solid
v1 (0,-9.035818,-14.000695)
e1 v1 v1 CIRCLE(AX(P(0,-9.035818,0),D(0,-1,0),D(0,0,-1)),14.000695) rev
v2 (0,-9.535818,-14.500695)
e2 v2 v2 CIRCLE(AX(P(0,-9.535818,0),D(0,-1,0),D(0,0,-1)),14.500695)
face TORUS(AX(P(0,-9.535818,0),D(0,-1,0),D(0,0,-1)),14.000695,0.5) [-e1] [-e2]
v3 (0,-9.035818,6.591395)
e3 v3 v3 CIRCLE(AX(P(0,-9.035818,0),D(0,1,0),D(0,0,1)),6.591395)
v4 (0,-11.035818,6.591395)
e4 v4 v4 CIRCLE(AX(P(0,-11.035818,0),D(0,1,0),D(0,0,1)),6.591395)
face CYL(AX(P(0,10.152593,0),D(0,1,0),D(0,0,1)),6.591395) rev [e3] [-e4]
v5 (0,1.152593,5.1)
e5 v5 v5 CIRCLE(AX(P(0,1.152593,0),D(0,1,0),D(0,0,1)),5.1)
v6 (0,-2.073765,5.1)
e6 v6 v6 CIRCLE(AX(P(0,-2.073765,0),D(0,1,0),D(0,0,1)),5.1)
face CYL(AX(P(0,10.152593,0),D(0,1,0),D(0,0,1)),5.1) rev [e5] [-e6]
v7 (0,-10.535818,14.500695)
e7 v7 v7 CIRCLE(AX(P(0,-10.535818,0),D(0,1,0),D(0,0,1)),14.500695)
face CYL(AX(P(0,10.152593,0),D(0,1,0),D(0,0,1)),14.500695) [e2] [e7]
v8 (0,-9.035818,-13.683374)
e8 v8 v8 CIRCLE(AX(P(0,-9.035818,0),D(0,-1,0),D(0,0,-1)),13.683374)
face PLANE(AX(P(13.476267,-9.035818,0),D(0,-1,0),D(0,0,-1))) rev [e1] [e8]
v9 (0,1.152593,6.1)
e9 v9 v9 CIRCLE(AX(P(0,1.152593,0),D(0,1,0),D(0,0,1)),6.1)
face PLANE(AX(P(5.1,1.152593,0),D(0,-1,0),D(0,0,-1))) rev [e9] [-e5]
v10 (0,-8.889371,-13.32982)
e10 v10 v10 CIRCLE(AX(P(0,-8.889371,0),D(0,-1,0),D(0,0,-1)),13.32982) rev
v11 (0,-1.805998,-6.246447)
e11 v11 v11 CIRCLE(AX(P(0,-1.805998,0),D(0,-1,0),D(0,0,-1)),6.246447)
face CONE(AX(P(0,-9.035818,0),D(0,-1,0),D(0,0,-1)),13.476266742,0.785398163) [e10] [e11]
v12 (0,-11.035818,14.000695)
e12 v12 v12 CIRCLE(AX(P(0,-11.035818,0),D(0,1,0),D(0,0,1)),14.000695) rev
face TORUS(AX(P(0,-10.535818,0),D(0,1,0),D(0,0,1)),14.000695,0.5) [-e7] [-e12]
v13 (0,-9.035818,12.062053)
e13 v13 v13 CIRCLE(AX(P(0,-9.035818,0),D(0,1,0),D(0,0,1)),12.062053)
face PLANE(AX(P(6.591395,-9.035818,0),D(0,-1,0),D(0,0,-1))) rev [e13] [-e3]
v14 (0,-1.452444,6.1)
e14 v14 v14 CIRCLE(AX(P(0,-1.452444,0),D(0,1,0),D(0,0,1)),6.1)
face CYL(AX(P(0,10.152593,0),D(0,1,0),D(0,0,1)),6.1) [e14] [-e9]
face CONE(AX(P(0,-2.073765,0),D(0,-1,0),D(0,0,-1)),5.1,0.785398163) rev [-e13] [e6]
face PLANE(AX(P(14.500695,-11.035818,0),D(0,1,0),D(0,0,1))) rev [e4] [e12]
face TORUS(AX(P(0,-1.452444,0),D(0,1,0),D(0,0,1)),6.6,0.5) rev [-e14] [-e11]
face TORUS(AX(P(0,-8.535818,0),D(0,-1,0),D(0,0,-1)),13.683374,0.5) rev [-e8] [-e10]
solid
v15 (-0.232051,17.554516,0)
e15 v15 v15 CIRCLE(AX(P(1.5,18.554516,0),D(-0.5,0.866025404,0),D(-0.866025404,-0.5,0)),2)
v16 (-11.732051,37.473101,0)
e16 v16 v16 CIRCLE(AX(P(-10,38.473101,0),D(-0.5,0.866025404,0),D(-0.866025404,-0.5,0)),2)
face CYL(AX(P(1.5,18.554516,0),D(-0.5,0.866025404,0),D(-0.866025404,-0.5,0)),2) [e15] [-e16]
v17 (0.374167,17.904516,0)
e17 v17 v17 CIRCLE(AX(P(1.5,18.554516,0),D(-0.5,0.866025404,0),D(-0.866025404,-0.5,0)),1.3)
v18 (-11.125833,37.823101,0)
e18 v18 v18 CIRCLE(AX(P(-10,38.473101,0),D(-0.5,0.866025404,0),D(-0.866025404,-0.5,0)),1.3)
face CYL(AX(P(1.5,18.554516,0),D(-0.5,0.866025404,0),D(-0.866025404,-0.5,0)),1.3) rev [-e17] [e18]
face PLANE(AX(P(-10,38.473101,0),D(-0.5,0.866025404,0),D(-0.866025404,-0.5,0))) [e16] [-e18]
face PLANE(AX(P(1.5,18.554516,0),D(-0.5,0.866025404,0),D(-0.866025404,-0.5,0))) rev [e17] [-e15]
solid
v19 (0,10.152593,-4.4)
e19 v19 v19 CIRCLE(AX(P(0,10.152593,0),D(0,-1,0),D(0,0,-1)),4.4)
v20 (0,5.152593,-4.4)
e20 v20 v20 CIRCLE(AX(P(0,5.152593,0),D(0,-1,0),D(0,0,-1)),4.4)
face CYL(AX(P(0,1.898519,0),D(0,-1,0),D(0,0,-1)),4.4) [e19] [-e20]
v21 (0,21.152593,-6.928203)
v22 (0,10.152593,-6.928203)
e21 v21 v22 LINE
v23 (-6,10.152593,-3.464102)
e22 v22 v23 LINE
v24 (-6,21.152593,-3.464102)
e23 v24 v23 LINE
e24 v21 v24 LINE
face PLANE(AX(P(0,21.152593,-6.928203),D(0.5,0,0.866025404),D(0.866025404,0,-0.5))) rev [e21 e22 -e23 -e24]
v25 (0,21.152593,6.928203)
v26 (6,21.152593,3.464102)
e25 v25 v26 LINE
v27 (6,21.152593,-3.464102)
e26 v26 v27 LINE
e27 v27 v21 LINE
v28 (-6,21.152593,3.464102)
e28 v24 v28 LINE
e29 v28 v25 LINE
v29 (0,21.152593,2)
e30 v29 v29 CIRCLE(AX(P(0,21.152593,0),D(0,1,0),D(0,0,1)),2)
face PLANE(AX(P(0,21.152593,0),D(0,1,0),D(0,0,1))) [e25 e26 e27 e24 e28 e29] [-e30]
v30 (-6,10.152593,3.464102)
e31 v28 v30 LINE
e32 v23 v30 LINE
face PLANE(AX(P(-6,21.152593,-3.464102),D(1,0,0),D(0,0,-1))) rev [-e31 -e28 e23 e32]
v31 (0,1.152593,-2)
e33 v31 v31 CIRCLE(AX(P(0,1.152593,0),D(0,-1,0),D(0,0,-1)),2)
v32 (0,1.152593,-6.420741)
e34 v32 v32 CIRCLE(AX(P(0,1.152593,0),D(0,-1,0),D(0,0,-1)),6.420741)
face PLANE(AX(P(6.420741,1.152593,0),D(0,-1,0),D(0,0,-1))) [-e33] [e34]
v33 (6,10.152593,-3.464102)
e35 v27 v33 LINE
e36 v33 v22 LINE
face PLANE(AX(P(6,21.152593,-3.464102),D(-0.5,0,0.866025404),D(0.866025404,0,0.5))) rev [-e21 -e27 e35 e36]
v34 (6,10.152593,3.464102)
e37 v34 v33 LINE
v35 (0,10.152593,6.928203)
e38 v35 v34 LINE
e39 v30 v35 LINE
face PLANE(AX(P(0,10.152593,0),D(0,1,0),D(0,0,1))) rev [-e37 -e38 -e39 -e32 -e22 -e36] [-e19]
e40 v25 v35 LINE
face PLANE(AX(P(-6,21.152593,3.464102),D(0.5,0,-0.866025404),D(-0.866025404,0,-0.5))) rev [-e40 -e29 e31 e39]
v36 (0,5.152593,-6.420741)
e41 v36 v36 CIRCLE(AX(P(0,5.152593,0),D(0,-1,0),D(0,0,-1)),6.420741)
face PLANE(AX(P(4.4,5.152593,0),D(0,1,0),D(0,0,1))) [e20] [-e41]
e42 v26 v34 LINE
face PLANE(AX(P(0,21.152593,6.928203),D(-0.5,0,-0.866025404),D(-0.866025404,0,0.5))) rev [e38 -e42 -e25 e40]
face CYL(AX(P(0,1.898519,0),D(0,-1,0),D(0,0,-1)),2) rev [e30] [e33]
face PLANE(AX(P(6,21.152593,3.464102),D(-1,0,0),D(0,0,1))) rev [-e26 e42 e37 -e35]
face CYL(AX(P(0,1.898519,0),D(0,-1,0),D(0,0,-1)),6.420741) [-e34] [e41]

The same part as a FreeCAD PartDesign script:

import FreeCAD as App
import Part
import Sketcher
Q = App.Units.Quantity


def edges_at(feature, points):
    """Names of the edges that pass closest to the given points."""
    edges = feature.Shape.Edges
    near = lambda p: min(range(len(edges)), key=lambda i: edges[i].distToShape(Part.Vertex(*p))[0])
    return sorted({f"Edge{near(p) + 1}" for p in points})

doc = App.newDocument("Part")
body = doc.addObject("PartDesign::Body", "Body")

# Sketch on XY plane
sketch1 = body.newObject("Sketcher::SketchObject", "Sketch")
sketch1.AttachmentSupport = (doc.getObject("XY_Plane"), [""])
sketch1.MapMode = "FlatFace"
sketch1.addGeometry(Part.LineSegment(App.Vector(4.4, 5.2, 0), App.Vector(4.4, 10.2, 0)), False)
sketch1.addGeometry(Part.LineSegment(App.Vector(4.4, 10.2, 0), App.Vector(2, 10.2, 0)), False)
sketch1.addGeometry(Part.LineSegment(App.Vector(2, 10.2, 0), App.Vector(2, 1.2, 0)), False)
sketch1.addGeometry(Part.LineSegment(App.Vector(2, 1.2, 0), App.Vector(6.4, 1.2, 0)), False)
sketch1.addGeometry(Part.LineSegment(App.Vector(6.4, 1.2, 0), App.Vector(6.4, 5.2, 0)), False)
sketch1.addGeometry(Part.LineSegment(App.Vector(6.4, 5.2, 0), App.Vector(4.4, 5.2, 0)), False)
sketch1.addConstraint(Sketcher.Constraint("Coincident", 0, 2, 1, 1))
sketch1.addConstraint(Sketcher.Constraint("Coincident", 1, 2, 2, 1))
sketch1.addConstraint(Sketcher.Constraint("Coincident", 2, 2, 3, 1))
sketch1.addConstraint(Sketcher.Constraint("Coincident", 3, 2, 4, 1))
sketch1.addConstraint(Sketcher.Constraint("Coincident", 4, 2, 5, 1))
sketch1.addConstraint(Sketcher.Constraint("Coincident", 5, 2, 0, 1))
sketch1.addConstraint(Sketcher.Constraint("Vertical", 0))
sketch1.addConstraint(Sketcher.Constraint("Horizontal", 1))
sketch1.addConstraint(Sketcher.Constraint("Vertical", 2))
sketch1.addConstraint(Sketcher.Constraint("Horizontal", 3))
sketch1.addConstraint(Sketcher.Constraint("Vertical", 4))
sketch1.addConstraint(Sketcher.Constraint("Horizontal", 5))
sketch1.addConstraint(Sketcher.Constraint("DistanceY", 0, 1, 0, 2, 5.0))
sketch1.addConstraint(Sketcher.Constraint("DistanceY", 2, 2, 2, 1, 9.0))
sketch1.addConstraint(Sketcher.Constraint("DistanceX", 1, 2, 1, 1, 2.4))
sketch1.addConstraint(Sketcher.Constraint("DistanceX", -1, 1, 1, 2, 2.0))
sketch1.addConstraint(Sketcher.Constraint("DistanceX", 3, 1, 3, 2, 4.420741))
sketch1.addConstraint(Sketcher.Constraint("DistanceY", -1, 1, 0, 2, 10.152593))
revolution = body.newObject("PartDesign::Revolution", "Revolution")
revolution.Profile = sketch1
revolution.ReferenceAxis = (sketch1, ["V_Axis"])
revolution.Angle = 360

# Sketch on XZ plane
sketch2 = body.newObject("Sketcher::SketchObject", "Sketch001")
sketch2.AttachmentSupport = (doc.getObject("XZ_Plane"), [""])
sketch2.MapMode = "FlatFace"
sketch2.AttachmentOffset = App.Placement(App.Vector(0, 0, -21.152593), App.Rotation())
sketch2.addGeometry(Part.LineSegment(App.Vector(6, -3.5, 0), App.Vector(0, -6.9, 0)), False)
sketch2.addGeometry(Part.LineSegment(App.Vector(0, -6.9, 0), App.Vector(-6, -3.5, 0)), False)
sketch2.addGeometry(Part.LineSegment(App.Vector(-6, -3.5, 0), App.Vector(-6, 3.5, 0)), False)
sketch2.addGeometry(Part.LineSegment(App.Vector(-6, 3.5, 0), App.Vector(0, 6.9, 0)), False)
sketch2.addGeometry(Part.LineSegment(App.Vector(0, 6.9, 0), App.Vector(6, 3.5, 0)), False)
sketch2.addGeometry(Part.LineSegment(App.Vector(6, 3.5, 0), App.Vector(6, -3.5, 0)), False)
sketch2.addGeometry(Part.Circle(App.Vector(0, 0, 0), App.Vector(0, 0, 1), 2), False)
sketch2.addConstraint(Sketcher.Constraint("Coincident", 0, 2, 1, 1))
sketch2.addConstraint(Sketcher.Constraint("Coincident", 1, 2, 2, 1))
sketch2.addConstraint(Sketcher.Constraint("Coincident", 2, 2, 3, 1))
sketch2.addConstraint(Sketcher.Constraint("Coincident", 3, 2, 4, 1))
sketch2.addConstraint(Sketcher.Constraint("Coincident", 4, 2, 5, 1))
sketch2.addConstraint(Sketcher.Constraint("Coincident", 5, 2, 0, 1))
sketch2.addConstraint(Sketcher.Constraint("Vertical", 2))
sketch2.addConstraint(Sketcher.Constraint("Vertical", 5))
sketch2.addConstraint(Sketcher.Constraint("Coincident", 6, 3, -1, 1))
sketch2.addConstraint(Sketcher.Constraint("Symmetric", 0, 2, 3, 2, -1, 1))
sketch2.addConstraint(Sketcher.Constraint("Symmetric", 1, 2, 4, 2, -1, 1))
sketch2.addConstraint(Sketcher.Constraint("PointOnObject", 0, 2, -2))
sketch2.addConstraint(Sketcher.Constraint("Parallel", 0, 3))
sketch2.addConstraint(Sketcher.Constraint("Horizontal", 2, 2, 4, 2))
sketch2.addConstraint(Sketcher.Constraint("Diameter", 6, 4.0))
sketch2.addConstraint(Sketcher.Constraint("Angle", 0, Q("-150 deg")))
sketch2.addConstraint(Sketcher.Constraint("DistanceX", 1, 2, -1, 1, 6.0))
sketch2.addConstraint(Sketcher.Constraint("DistanceY", 1, 2, -1, 1, 3.464102))
pad1 = body.newObject("PartDesign::Pad", "Pad")
pad1.Profile = sketch2
pad1.Length = 11
body2 = doc.addObject("PartDesign::Body", "Body001")

# Sketch on XY plane
sketch3 = body2.newObject("Sketcher::SketchObject", "Sketch002")
sketch3.AttachmentSupport = (doc.getObject("XY_Plane001"), [""])
sketch3.MapMode = "FlatFace"
sketch3.addGeometry(Part.LineSegment(App.Vector(6.1, -1.7, 0), App.Vector(6.1, 1.2, 0)), False)
sketch3.addGeometry(Part.LineSegment(App.Vector(6.1, 1.2, 0), App.Vector(5.1, 1.2, 0)), False)
sketch3.addGeometry(Part.LineSegment(App.Vector(5.1, 1.2, 0), App.Vector(5.1, -2.1, 0)), False)
sketch3.addGeometry(Part.LineSegment(App.Vector(5.1, -2.1, 0), App.Vector(12.1, -9, 0)), False)
sketch3.addGeometry(Part.LineSegment(App.Vector(12.1, -9, 0), App.Vector(6.6, -9, 0)), False)
sketch3.addGeometry(Part.LineSegment(App.Vector(6.6, -9, 0), App.Vector(6.6, -11, 0)), False)
sketch3.addGeometry(Part.LineSegment(App.Vector(6.6, -11, 0), App.Vector(14.5, -11, 0)), False)
sketch3.addGeometry(Part.LineSegment(App.Vector(14.5, -11, 0), App.Vector(14.5, -9, 0)), False)
sketch3.addGeometry(Part.LineSegment(App.Vector(14.5, -9, 0), App.Vector(13.5, -9, 0)), False)
sketch3.addGeometry(Part.LineSegment(App.Vector(13.5, -9, 0), App.Vector(6.1, -1.7, 0)), False)
sketch3.addConstraint(Sketcher.Constraint("Coincident", 0, 2, 1, 1))
sketch3.addConstraint(Sketcher.Constraint("Coincident", 1, 2, 2, 1))
sketch3.addConstraint(Sketcher.Constraint("Coincident", 2, 2, 3, 1))
sketch3.addConstraint(Sketcher.Constraint("Coincident", 3, 2, 4, 1))
sketch3.addConstraint(Sketcher.Constraint("Coincident", 4, 2, 5, 1))
sketch3.addConstraint(Sketcher.Constraint("Coincident", 5, 2, 6, 1))
sketch3.addConstraint(Sketcher.Constraint("Coincident", 6, 2, 7, 1))
sketch3.addConstraint(Sketcher.Constraint("Coincident", 7, 2, 8, 1))
sketch3.addConstraint(Sketcher.Constraint("Coincident", 8, 2, 9, 1))
sketch3.addConstraint(Sketcher.Constraint("Coincident", 9, 2, 0, 1))
sketch3.addConstraint(Sketcher.Constraint("Vertical", 0))
sketch3.addConstraint(Sketcher.Constraint("Horizontal", 1))
sketch3.addConstraint(Sketcher.Constraint("Vertical", 2))
sketch3.addConstraint(Sketcher.Constraint("Horizontal", 4))
sketch3.addConstraint(Sketcher.Constraint("Vertical", 5))
sketch3.addConstraint(Sketcher.Constraint("Horizontal", 6))
sketch3.addConstraint(Sketcher.Constraint("Vertical", 7))
sketch3.addConstraint(Sketcher.Constraint("Horizontal", 8))
sketch3.addConstraint(Sketcher.Constraint("Parallel", 3, 9))
sketch3.addConstraint(Sketcher.Constraint("Horizontal", 4, 2, 7, 2))
sketch3.addConstraint(Sketcher.Constraint("DistanceX", 1, 2, 1, 1, 1.0))
sketch3.addConstraint(Sketcher.Constraint("DistanceY", 5, 2, 5, 1, 2.0))
sketch3.addConstraint(Sketcher.Constraint("Angle", 3, Q("-45 deg")))
sketch3.addConstraint(Sketcher.Constraint("DistanceX", -1, 1, 0, 2, 6.1))
sketch3.addConstraint(Sketcher.Constraint("DistanceX", 6, 1, 6, 2, 7.9093))
sketch3.addConstraint(Sketcher.Constraint("DistanceX", 4, 2, 4, 1, 5.470658))
sketch3.addConstraint(Sketcher.Constraint("DistanceX", 8, 2, 8, 1, 1.024429))
sketch3.addConstraint(Sketcher.Constraint("Distance", 3, 9.84583))
sketch3.addConstraint(Sketcher.Constraint("DistanceY", 0, 1, 0, 2, 2.812144))
sketch3.addConstraint(Sketcher.Constraint("DistanceY", 9, 2, -1, 1, 1.659551))
revolution2 = body2.newObject("PartDesign::Revolution", "Revolution001")
revolution2.Profile = sketch3
revolution2.ReferenceAxis = (sketch3, ["V_Axis"])
revolution2.Angle = 360
doc.recompute()

fillet = body2.newObject("PartDesign::Fillet", "Fillet")
fillet.Base = (revolution2, edges_at(revolution2, [
    (0, -9.036, -13.476),
    (0, -1.66, -6.1),
    (0, -11.036, -14.501),
    (0, -9.036, -14.501),
]))
fillet.Radius = 0.5
body3 = doc.addObject("PartDesign::Body", "Body002")

# Sketch on an angled plane
sketch4 = body3.newObject("Sketcher::SketchObject", "Sketch003")
sketch4.Placement = App.Placement(App.Vector(0, 21.152593, 0), App.Rotation(App.Vector(0.866025404, 0.5, 0), App.Vector(0, 0, -1), App.Vector(-0.5, 0.866025404, 0), "ZXY"))
sketch4.addGeometry(Part.Circle(App.Vector(0, 0, 0), App.Vector(0, 0, 1), 2), False)
sketch4.addGeometry(Part.Circle(App.Vector(0, 0, 0), App.Vector(0, 0, 1), 1.3), False)
sketch4.addConstraint(Sketcher.Constraint("Coincident", 0, 3, -1, 1))
sketch4.addConstraint(Sketcher.Constraint("Coincident", 1, 3, -1, 1))
sketch4.addConstraint(Sketcher.Constraint("Diameter", 0, 4.0))
sketch4.addConstraint(Sketcher.Constraint("Diameter", 1, 2.6))
pad2 = body3.newObject("PartDesign::Pad", "Pad001")
pad2.Profile = sketch4
pad2.Type = "TwoLengths"
pad2.Length = 20
pad2.Length2 = 3

doc.recompute()
